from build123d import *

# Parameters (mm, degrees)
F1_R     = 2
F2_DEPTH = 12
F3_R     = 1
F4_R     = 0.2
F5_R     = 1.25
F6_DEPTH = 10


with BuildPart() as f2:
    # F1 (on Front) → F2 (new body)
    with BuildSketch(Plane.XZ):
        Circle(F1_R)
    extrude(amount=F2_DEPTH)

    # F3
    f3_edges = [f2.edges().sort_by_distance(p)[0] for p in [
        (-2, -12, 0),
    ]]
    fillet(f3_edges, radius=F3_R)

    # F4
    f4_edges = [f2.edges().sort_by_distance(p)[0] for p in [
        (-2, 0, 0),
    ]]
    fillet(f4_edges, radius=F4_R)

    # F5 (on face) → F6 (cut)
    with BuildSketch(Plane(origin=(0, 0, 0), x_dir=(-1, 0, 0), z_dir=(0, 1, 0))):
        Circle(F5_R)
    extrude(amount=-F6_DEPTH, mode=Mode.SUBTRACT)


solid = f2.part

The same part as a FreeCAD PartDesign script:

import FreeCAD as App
import Part
import Sketcher

V = App.Vector
Q = App.Units.Quantity


def edges_at(feature, points):
    """Names of the edges that pass closest to the given points."""
    edges = feature.Shape.Edges
    near = lambda p: min(range(len(edges)), key=lambda i: edges[i].distToShape(Part.Vertex(*p))[0])
    return sorted({f"Edge{near(p) + 1}" for p in points})

doc = App.newDocument("Part")
body = doc.addObject("PartDesign::Body", "Body")

sketch1 = body.newObject("Sketcher::SketchObject", "Sketch")
sketch1.AttachmentSupport = (doc.getObject("XZ_Plane"), [""])
sketch1.MapMode = "FlatFace"
sketch1.addGeometry(Part.Circle(V(0, 0, 0), V(0, 0, 1), 2), False)
sketch1.addConstraint(Sketcher.Constraint("Coincident", 0, 3, -1, 1))
sketch1.addConstraint(Sketcher.Constraint("Diameter", 0, Q("4 mm")))
pad1 = body.newObject("PartDesign::Pad", "Pad")
pad1.Profile = sketch1
pad1.Length = 12
doc.recompute()

fillet = body.newObject("PartDesign::Fillet", "Fillet")
fillet.Base = (pad1, edges_at(pad1, [(-2, -12, 0)]))
fillet.Radius = 1
doc.recompute()

fillet2 = body.newObject("PartDesign::Fillet", "Fillet001")
fillet2.Base = (fillet, edges_at(fillet, [(-2, 0, 0)]))
fillet2.Radius = 0.2

sketch2 = body.newObject("Sketcher::SketchObject", "Sketch001")
sketch2.AttachmentSupport = (doc.getObject("XZ_Plane"), [""])
sketch2.MapMode = "FlatFace"
sketch2.addGeometry(Part.Circle(V(0, 0, 0), V(0, 0, 1), 1.2), False)
sketch2.addConstraint(Sketcher.Constraint("Coincident", 0, 3, -1, 1))
sketch2.addConstraint(Sketcher.Constraint("Diameter", 0, Q("2.5 mm")))
pocket1 = body.newObject("PartDesign::Pocket", "Pocket")
pocket1.Profile = sketch2
pocket1.Length = 10
pocket1.Reversed = True

doc.recompute()
